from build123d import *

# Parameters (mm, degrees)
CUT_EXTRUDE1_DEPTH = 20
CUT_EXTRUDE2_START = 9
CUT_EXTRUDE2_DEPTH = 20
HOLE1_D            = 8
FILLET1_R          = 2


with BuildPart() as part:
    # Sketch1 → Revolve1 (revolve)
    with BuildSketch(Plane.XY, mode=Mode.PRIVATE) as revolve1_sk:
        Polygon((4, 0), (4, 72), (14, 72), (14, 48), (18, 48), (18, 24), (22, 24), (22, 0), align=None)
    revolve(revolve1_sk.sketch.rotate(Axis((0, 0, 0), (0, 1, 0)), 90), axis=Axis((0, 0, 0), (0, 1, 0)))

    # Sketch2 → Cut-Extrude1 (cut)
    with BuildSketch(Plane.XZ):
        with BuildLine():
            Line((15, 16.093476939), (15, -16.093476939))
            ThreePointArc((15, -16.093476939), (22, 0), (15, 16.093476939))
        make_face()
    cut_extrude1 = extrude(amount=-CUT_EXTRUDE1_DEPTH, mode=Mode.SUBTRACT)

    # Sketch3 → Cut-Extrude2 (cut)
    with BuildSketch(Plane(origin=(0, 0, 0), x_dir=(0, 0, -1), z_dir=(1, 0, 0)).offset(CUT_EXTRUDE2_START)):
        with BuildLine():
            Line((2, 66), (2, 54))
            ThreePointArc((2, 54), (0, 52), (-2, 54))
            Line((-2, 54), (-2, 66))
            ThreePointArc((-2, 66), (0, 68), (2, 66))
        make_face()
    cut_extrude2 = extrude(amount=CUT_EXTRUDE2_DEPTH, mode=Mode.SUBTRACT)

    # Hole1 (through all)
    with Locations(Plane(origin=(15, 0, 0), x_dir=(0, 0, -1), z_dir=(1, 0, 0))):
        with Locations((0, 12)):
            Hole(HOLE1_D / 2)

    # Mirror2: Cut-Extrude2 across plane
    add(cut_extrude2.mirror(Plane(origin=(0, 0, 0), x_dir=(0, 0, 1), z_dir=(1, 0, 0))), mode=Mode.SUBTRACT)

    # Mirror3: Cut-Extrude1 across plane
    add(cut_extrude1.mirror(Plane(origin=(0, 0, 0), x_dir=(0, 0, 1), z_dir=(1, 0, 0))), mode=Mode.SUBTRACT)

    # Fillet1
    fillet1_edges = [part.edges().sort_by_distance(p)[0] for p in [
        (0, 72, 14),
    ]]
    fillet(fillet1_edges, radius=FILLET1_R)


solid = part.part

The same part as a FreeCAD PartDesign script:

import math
import FreeCAD as App
import Part
import Sketcher
Q = App.Units.Quantity


def edges_at(feature, points):
    """Names of the edges that pass closest to the given points."""
    edges = feature.Shape.Edges
    near = lambda p: min(range(len(edges)), key=lambda i: edges[i].distToShape(Part.Vertex(*p))[0])
    return sorted({f"Edge{near(p) + 1}" for p in points})


def add_polygon(sketch, points):
    """Adds a closed chain of lines whose ends are joined by coincident constraints."""
    first, n = sketch.GeometryCount, len(points)
    for a, b in zip(points, points[1:] + points[:1]):
        sketch.addGeometry(Part.LineSegment(App.Vector(*a, 0), App.Vector(*b, 0)), False)
    for i in range(n):
        sketch.addConstraint(Sketcher.Constraint("Coincident", first + i, 2, first + (i + 1) % n, 1))

doc = App.newDocument("Part")
body = doc.addObject("PartDesign::Body", "Body")

sketch1 = body.newObject("Sketcher::SketchObject", "Sketch")
sketch1.AttachmentSupport = (doc.getObject("XY_Plane"), [""])
sketch1.MapMode = "FlatFace"
add_polygon(sketch1, [(4, 72), (4, 0), (22, 0), (22, 24), (18, 24), (18, 48), (14, 48), (14, 72)])
sketch1.addConstraint([
    Sketcher.Constraint("Vertical", 0),
    Sketcher.Constraint("Horizontal", 1),
    Sketcher.Constraint("Vertical", 2),
    Sketcher.Constraint("Horizontal", 3),
    Sketcher.Constraint("Vertical", 4),
    Sketcher.Constraint("Horizontal", 5),
    Sketcher.Constraint("Vertical", 6),
    Sketcher.Constraint("Horizontal", 7),
    Sketcher.Constraint("PointOnObject", 0, 2, -1),
    Sketcher.Constraint("Equal", 3, 5),
    Sketcher.Constraint("Equal", 2, 4),
    Sketcher.Constraint("Equal", 4, 6),
    Sketcher.Constraint("DistanceX", 1, 1, 1, 2, Q("18 mm")),
    Sketcher.Constraint("DistanceX", 3, 2, 3, 1, Q("4 mm")),
    Sketcher.Constraint("DistanceY", 0, 2, 0, 1, Q("72 mm")),
    Sketcher.Constraint("DistanceX", -1, 1, 0, 2, Q("4 mm")),
])
revolution = body.newObject("PartDesign::Revolution", "Revolution")
revolution.Profile = sketch1
revolution.ReferenceAxis = (sketch1, ["V_Axis"])
revolution.Angle = 360

sketch2 = body.newObject("Sketcher::SketchObject", "Sketch001")
sketch2.AttachmentSupport = (doc.getObject("XZ_Plane"), [""])
sketch2.MapMode = "FlatFace"
sketch2.addGeometry([
    Part.LineSegment(App.Vector(15, 16, 0), App.Vector(15, -16, 0)),
    Part.ArcOfCircle(Part.Circle(App.Vector(0, 0, 0), App.Vector(0, 0, 1), 22), math.radians(-47), math.radians(47)),
], False)
sketch2.addConstraint([
    Sketcher.Constraint("Coincident", 0, 1, 1, 2),
    Sketcher.Constraint("Coincident", 1, 1, 0, 2),
    Sketcher.Constraint("Vertical", 0),
    Sketcher.Constraint("Coincident", 1, 3, -1, 1),
    Sketcher.Constraint("Radius", 1, Q("22 mm")),
    Sketcher.Constraint("DistanceX", -1, 1, 0, 1, Q("15 mm")),
])
pocket1 = body.newObject("PartDesign::Pocket", "Pocket")
pocket1.Profile = sketch2
pocket1.Length = 20

sketch3 = body.newObject("Sketcher::SketchObject", "Sketch002")
sketch3.AttachmentSupport = (doc.getObject("YZ_Plane"), [""])
sketch3.MapMode = "FlatFace"
sketch3.AttachmentOffset = App.Placement(App.Vector(0, 0, 9), App.Rotation())
sketch3.addGeometry([
    Part.LineSegment(App.Vector(54, -2, 0), App.Vector(66, -2, 0)),
    Part.ArcOfCircle(Part.Circle(App.Vector(66, 0, 0), App.Vector(0, 0, 1), 2), math.radians(-90), math.radians(90)),
    Part.LineSegment(App.Vector(66, 2, 0), App.Vector(54, 2, 0)),
    Part.ArcOfCircle(Part.Circle(App.Vector(54, 0, 0), App.Vector(0, 0, 1), 2), math.radians(90), math.radians(270)),
], False)
sketch3.addConstraint([
    Sketcher.Constraint("Tangent", 0, 2, 1, 1),
    Sketcher.Constraint("Tangent", 1, 2, 2, 1),
    Sketcher.Constraint("Tangent", 2, 2, 3, 1),
    Sketcher.Constraint("Tangent", 3, 2, 0, 1),
    Sketcher.Constraint("Horizontal", 0),
    Sketcher.Constraint("Horizontal", 2),
    Sketcher.Constraint("PointOnObject", 1, 3, -1),
    Sketcher.Constraint("Radius", 1, Q("2 mm")),
    Sketcher.Constraint("DistanceX", 0, 1, 0, 2, Q("12 mm")),
    Sketcher.Constraint("DistanceX", -1, 1, 1, 3, Q("66 mm")),
])
pocket2 = body.newObject("PartDesign::Pocket", "Pocket001")
pocket2.Profile = sketch3
pocket2.Length = 20
pocket2.Reversed = True

sketch4 = body.newObject("Sketcher::SketchObject", "Sketch003")
sketch4.AttachmentSupport = (doc.getObject("YZ_Plane"), [""])
sketch4.MapMode = "FlatFace"
sketch4.AttachmentOffset = App.Placement(App.Vector(0, 0, 15), App.Rotation())
sketch4.addGeometry(Part.Circle(App.Vector(12, 0, 0), App.Vector(0, 0, 1), 4), False)
sketch4.addConstraint([
    Sketcher.Constraint("PointOnObject", 0, 3, -1),
    Sketcher.Constraint("Diameter", 0, Q("8 mm")),
    Sketcher.Constraint("DistanceX", -1, 1, 0, 3, Q("12 mm")),
])
doc.recompute()
hole = body.newObject("PartDesign::Hole", "Hole")
hole.Profile = sketch4
hole.ThreadType = "None"
hole.Diameter = 8
hole.DepthType = "ThroughAll"
doc.recompute()

mirrored = body.newObject("PartDesign::Mirrored", "Mirrored")
mirrored.Originals = [pocket2]
mirrored.MirrorPlane = (doc.getObject("YZ_Plane"), [""])
body.Tip = mirrored
doc.recompute()

mirrored2 = body.newObject("PartDesign::Mirrored", "Mirrored001")
mirrored2.Originals = [pocket1]
mirrored2.MirrorPlane = (doc.getObject("YZ_Plane"), [""])
body.Tip = mirrored2
doc.recompute()

fillet = body.newObject("PartDesign::Fillet", "Fillet")
fillet.Base = (mirrored2, edges_at(mirrored2, [(0, 72, 14)]))
fillet.Radius = 2

doc.recompute()
